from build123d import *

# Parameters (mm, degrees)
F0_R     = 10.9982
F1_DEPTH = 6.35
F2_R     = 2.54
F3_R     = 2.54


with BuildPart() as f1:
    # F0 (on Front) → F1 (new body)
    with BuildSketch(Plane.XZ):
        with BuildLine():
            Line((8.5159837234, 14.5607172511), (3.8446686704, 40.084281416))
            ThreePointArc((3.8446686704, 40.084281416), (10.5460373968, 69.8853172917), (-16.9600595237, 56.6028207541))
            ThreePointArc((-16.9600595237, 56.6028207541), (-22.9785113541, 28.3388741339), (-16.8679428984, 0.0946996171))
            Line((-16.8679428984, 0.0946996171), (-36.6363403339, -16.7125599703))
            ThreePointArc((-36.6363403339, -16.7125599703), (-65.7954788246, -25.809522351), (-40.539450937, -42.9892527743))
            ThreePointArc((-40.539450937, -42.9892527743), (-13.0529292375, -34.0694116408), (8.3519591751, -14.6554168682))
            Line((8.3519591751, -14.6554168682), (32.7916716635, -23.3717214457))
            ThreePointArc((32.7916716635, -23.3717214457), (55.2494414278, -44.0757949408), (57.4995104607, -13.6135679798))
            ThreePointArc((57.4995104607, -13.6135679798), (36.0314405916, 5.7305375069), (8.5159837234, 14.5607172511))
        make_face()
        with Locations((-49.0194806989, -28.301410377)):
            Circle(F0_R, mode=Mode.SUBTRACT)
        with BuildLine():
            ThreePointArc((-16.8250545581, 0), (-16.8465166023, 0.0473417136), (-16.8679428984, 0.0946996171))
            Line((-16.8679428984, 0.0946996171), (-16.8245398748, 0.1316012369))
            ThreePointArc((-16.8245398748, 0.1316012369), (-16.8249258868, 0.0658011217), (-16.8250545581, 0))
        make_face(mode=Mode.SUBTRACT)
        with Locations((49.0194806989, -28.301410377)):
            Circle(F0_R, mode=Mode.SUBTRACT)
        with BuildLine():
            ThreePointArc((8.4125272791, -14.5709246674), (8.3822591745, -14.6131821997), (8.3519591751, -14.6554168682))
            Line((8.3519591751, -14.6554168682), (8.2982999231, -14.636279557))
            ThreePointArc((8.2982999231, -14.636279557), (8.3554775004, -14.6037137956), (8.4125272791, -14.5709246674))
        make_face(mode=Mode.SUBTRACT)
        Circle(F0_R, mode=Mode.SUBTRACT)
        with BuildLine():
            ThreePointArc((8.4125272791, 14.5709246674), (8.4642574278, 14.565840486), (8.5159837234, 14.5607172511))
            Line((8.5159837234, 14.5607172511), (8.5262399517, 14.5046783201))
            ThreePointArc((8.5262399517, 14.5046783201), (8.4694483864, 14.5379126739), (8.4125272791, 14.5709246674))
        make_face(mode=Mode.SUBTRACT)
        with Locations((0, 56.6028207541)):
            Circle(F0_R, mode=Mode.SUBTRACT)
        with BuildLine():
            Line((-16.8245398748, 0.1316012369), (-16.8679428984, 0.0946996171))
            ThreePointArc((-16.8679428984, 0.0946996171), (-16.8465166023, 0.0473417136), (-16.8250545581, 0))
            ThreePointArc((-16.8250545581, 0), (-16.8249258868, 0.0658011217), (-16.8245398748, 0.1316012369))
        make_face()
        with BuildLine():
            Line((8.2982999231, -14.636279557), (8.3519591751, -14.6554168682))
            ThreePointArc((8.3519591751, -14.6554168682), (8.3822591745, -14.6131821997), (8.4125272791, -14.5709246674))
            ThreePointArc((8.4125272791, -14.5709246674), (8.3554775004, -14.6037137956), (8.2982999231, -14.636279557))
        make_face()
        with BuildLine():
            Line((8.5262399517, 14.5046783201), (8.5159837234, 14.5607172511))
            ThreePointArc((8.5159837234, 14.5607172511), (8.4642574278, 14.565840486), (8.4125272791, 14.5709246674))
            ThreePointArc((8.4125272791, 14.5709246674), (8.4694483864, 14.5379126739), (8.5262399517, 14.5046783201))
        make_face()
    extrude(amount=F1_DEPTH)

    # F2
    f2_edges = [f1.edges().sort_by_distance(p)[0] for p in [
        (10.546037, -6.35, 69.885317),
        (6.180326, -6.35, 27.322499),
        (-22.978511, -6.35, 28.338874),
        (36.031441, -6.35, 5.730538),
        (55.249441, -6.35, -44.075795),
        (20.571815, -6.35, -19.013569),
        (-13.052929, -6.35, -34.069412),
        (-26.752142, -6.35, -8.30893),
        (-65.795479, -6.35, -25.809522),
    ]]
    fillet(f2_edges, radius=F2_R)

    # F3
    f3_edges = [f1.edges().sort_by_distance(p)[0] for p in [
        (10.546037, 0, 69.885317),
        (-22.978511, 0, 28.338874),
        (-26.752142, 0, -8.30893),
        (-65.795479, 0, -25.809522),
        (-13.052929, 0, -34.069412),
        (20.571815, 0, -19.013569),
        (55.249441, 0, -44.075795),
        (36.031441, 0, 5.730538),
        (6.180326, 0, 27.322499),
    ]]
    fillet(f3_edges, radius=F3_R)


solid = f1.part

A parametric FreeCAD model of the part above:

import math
import FreeCAD as App
import Part
import Sketcher

V = App.Vector
Q = App.Units.Quantity


def edges_at(feature, points):
    """Names of the edges that pass closest to the given points."""
    edges = feature.Shape.Edges
    near = lambda p: min(range(len(edges)), key=lambda i: edges[i].distToShape(Part.Vertex(*p))[0])
    return sorted({f"Edge{near(p) + 1}" for p in points})

doc = App.newDocument("Part")
body = doc.addObject("PartDesign::Body", "Body")

sketch1 = body.newObject("Sketcher::SketchObject", "Sketch")
sketch1.AttachmentSupport = (doc.getObject("XZ_Plane"), [""])
sketch1.MapMode = "FlatFace"
sketch1.addGeometry([
    Part.ArcOfCircle(Part.Circle(V(1.704167, -53.950513, 0), V(0, 0, 1), 68.849034), math.radians(35.864846), math.radians(84.321955)),
    Part.LineSegment(V(8.515984, 14.560717, 0), V(3.844669, 40.084281, 0)),
    Part.ArcOfCircle(Part.Circle(V(0, 56.602821, 0), V(0, 0, 1), 16.96006), math.radians(-76.897749), math.radians(180)),
    Part.ArcOfCircle(Part.Circle(V(45.870431, 28.451108, 0), V(0, 0, 1), 68.849034), math.radians(155.864846), math.radians(204.321955)),
    Part.LineSegment(V(-16.867943, 0.0947, 0), V(-36.63634, -16.71256, 0)),
    Part.ArcOfCircle(Part.Circle(V(-49.019481, -28.30141, 0), V(0, 0, 1), 16.96006), math.radians(43.102251), math.radians(300)),
    Part.ArcOfCircle(Part.Circle(V(-47.574598, 25.499405, 0), V(0, 0, 1), 68.849034), math.radians(-84.135154), math.radians(-35.678045)),
    Part.LineSegment(V(8.351959, -14.655417, 0), V(32.791672, -23.371721, 0)),
    Part.ArcOfCircle(Part.Circle(V(49.019481, -28.30141, 0), V(0, 0, 1), 16.96006), math.radians(163.102251), math.radians(420)),
    Part.Circle(V(-49.019481, -28.30141, 0), V(0, 0, 1), 10.9982),
    Part.Circle(V(49.019481, -28.30141, 0), V(0, 0, 1), 10.9982),
    Part.Circle(V(0, 0, 0), V(0, 0, 1), 10.9982),
    Part.Circle(V(0, 56.602821, 0), V(0, 0, 1), 10.9982),
], False)
sketch1.addConstraint([
    Sketcher.Constraint("Coincident", 0, 2, 1, 1),
    Sketcher.Constraint("Coincident", 1, 2, 2, 1),
    Sketcher.Constraint("Coincident", 2, 2, 3, 1),
    Sketcher.Constraint("Coincident", 3, 2, 4, 1),
    Sketcher.Constraint("Coincident", 4, 2, 5, 1),
    Sketcher.Constraint("Coincident", 5, 2, 6, 1),
    Sketcher.Constraint("Coincident", 6, 2, 7, 1),
    Sketcher.Constraint("Coincident", 7, 2, 8, 1),
    Sketcher.Constraint("Coincident", 8, 2, 0, 1),
    Sketcher.Constraint("Coincident", 11, 3, -1, 1),
    Sketcher.Constraint("Coincident", 9, 3, 5, 3),
    Sketcher.Constraint("Coincident", 10, 3, 8, 3),
    Sketcher.Constraint("Coincident", 12, 3, 2, 3),
    Sketcher.Constraint("Equal", 0, 3),
    Sketcher.Constraint("Equal", 2, 5),
    Sketcher.Constraint("Equal", 3, 6),
    Sketcher.Constraint("Equal", 5, 8),
    Sketcher.Constraint("Equal", 9, 10),
    Sketcher.Constraint("Equal", 10, 11),
    Sketcher.Constraint("Equal", 11, 12),
    Sketcher.Constraint("Symmetric", 5, 3, 8, 3, -2),
    Sketcher.Constraint("PointOnObject", 2, 3, -2),
    Sketcher.Constraint("Horizontal", 12, 3, 2, 2),
    Sketcher.Constraint("Equal", 1, 4),
    Sketcher.Constraint("Equal", 4, 7),
    Sketcher.Constraint("Diameter", 9, Q("0.866 in")),
    Sketcher.Constraint("Radius", 2, 16.96006),
    Sketcher.Constraint("Radius", 0, 68.849034),
    Sketcher.Constraint("DistanceX", 6, 3, -1, 1, 47.574598),
    Sketcher.Constraint("DistanceY", -1, 1, 3, 2, 0.0947),
    Sketcher.Constraint("DistanceY", -1, 1, 2, 3, 56.602821),
    Sketcher.Constraint("DistanceX", -1, 1, 3, 3, 45.870431),
    Sketcher.Constraint("DistanceX", 5, 3, -1, 1, 49.019481),
    Sketcher.Constraint("DistanceY", 5, 3, -1, 1, 28.30141),
    Sketcher.Constraint("DistanceX", -1, 1, 1, 2, 3.844669),
    Sketcher.Constraint("DistanceX", 4, 2, -1, 1, 36.63634),
    Sketcher.Constraint("DistanceX", 5, 2, -1, 1, 40.539451),
    Sketcher.Constraint("DistanceX", -1, 1, 6, 2, 8.351959),
    Sketcher.Constraint("DistanceX", -1, 1, 8, 2, 57.49951),
    Sketcher.Constraint("DistanceY", 0, 3, 3, 3, 82.401621),
])
pad1 = body.newObject("PartDesign::Pad", "Pad")
pad1.Profile = sketch1
pad1.Length = Q("0.25 in")
doc.recompute()

fillet = body.newObject("PartDesign::Fillet", "Fillet")
fillet.Base = (pad1, edges_at(pad1, [
    (10.546, -6.35, 69.885),
    (6.18, -6.35, 27.322),
    (-22.979, -6.35, 28.339),
    (36.031, -6.35, 5.731),
    (55.249, -6.35, -44.076),
    (20.572, -6.35, -19.014),
    (-13.053, -6.35, -34.069),
    (-26.752, -6.35, -8.309),
    (-65.795, -6.35, -25.81),
]))
fillet.Radius = Q("0.1 in")
doc.recompute()

fillet2 = body.newObject("PartDesign::Fillet", "Fillet001")
fillet2.Base = (fillet, edges_at(fillet, [
    (10.546, 0, 69.885),
    (-22.979, 0, 28.339),
    (-26.752, 0, -8.309),
    (-65.795, 0, -25.81),
    (-13.053, 0, -34.069),
    (20.572, 0, -19.014),
    (55.249, 0, -44.076),
    (36.031, 0, 5.731),
    (6.18, 0, 27.322),
]))
fillet2.Radius = Q("0.1 in")

doc.recompute()
